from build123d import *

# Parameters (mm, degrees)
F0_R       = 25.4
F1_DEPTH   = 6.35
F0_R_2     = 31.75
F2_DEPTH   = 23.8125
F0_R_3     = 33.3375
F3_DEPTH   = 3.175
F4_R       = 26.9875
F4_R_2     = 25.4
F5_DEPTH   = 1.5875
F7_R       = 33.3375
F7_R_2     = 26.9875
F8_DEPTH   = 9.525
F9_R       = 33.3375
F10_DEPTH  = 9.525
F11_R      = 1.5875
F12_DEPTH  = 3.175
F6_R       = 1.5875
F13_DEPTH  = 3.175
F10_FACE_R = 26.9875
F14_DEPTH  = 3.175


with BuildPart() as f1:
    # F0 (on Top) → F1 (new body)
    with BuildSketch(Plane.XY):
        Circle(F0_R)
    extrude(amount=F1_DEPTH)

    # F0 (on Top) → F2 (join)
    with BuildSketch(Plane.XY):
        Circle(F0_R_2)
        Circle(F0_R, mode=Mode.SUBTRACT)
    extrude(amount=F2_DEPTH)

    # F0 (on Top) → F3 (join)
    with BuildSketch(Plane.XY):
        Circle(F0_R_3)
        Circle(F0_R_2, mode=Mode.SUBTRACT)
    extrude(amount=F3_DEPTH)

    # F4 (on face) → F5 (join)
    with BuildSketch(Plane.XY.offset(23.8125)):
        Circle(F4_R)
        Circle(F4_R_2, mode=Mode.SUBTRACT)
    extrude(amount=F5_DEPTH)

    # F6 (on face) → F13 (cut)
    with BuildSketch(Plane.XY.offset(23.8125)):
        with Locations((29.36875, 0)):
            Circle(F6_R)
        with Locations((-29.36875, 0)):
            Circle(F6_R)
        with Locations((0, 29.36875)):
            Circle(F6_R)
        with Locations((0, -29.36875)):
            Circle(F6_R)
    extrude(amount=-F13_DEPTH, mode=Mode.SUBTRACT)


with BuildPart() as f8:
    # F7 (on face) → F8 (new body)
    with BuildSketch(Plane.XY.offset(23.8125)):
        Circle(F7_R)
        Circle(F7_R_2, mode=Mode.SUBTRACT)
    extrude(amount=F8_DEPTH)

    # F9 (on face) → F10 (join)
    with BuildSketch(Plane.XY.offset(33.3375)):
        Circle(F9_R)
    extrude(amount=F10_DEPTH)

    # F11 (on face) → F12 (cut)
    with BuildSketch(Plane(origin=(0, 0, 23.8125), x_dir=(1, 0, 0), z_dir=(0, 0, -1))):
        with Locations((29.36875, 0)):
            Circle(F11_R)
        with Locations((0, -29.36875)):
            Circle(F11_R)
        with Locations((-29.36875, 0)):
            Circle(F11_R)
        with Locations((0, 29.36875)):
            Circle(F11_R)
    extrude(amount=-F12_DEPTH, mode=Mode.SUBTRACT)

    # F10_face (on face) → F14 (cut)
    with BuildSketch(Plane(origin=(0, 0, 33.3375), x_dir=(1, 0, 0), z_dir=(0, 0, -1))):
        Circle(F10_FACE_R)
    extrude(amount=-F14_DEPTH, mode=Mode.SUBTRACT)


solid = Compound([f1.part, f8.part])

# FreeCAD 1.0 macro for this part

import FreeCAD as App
import Part
import Sketcher
Q = App.Units.Quantity

doc = App.newDocument("Part")
body = doc.addObject("PartDesign::Body", "Body")

# Sketch on XY plane
sketch1 = doc.addObject("Sketcher::SketchObject", "Sketch")
body.addObject(sketch1)
sketch1.AttachmentSupport = (doc.XY_Plane, [""])
sketch1.MapMode = "FlatFace"
sketch1.addGeometry(Part.Circle(App.Vector(0, 0, 0), App.Vector(0, 0, 1), 25), False)
sketch1.addConstraint([
    Sketcher.Constraint("Coincident", 0, 3, -1, 1),
    Sketcher.Constraint("Diameter", 0, Q("2 in")),
])
pad1 = doc.addObject("PartDesign::Pad", "Pad")
body.addObject(pad1)
pad1.Profile = sketch1
pad1.Length = Q("0.25 in")

# Sketch on XY plane
sketch2 = doc.addObject("Sketcher::SketchObject", "Sketch001")
body.addObject(sketch2)
sketch2.AttachmentSupport = (doc.XY_Plane, [""])
sketch2.MapMode = "FlatFace"
sketch2.addGeometry([
    Part.Circle(App.Vector(0, 0, 0), App.Vector(0, 0, 1), 32),
    Part.Circle(App.Vector(0, 0, 0), App.Vector(0, 0, 1), 25),
], False)
sketch2.addConstraint([
    Sketcher.Constraint("Coincident", 0, 3, -1, 1),
    Sketcher.Constraint("Coincident", 1, 3, -1, 1),
    Sketcher.Constraint("Diameter", 1, Q("2 in")),
    Sketcher.Constraint("Diameter", 0, Q("2.5 in")),
])
pad2 = doc.addObject("PartDesign::Pad", "Pad001")
body.addObject(pad2)
pad2.Profile = sketch2
pad2.Length = Q("0.9375 in")

# Sketch on XY plane
sketch3 = doc.addObject("Sketcher::SketchObject", "Sketch002")
body.addObject(sketch3)
sketch3.AttachmentSupport = (doc.XY_Plane, [""])
sketch3.MapMode = "FlatFace"
sketch3.addGeometry([
    Part.Circle(App.Vector(0, 0, 0), App.Vector(0, 0, 1), 33),
    Part.Circle(App.Vector(0, 0, 0), App.Vector(0, 0, 1), 32),
], False)
sketch3.addConstraint([
    Sketcher.Constraint("Coincident", 0, 3, -1, 1),
    Sketcher.Constraint("Coincident", 1, 3, -1, 1),
    Sketcher.Constraint("Diameter", 1, Q("2.5 in")),
    Sketcher.Constraint("Diameter", 0, Q("2.625 in")),
])
pad3 = doc.addObject("PartDesign::Pad", "Pad002")
body.addObject(pad3)
pad3.Profile = sketch3
pad3.Length = Q("0.125 in")

# Sketch on XY plane
sketch4 = doc.addObject("Sketcher::SketchObject", "Sketch003")
body.addObject(sketch4)
sketch4.AttachmentSupport = (doc.XY_Plane, [""])
sketch4.MapMode = "FlatFace"
sketch4.AttachmentOffset = App.Placement(App.Vector(0, 0, 0.9375 * 25.4), App.Rotation())
sketch4.addGeometry([
    Part.Circle(App.Vector(0, 0, 0), App.Vector(0, 0, 1), 27),
    Part.Circle(App.Vector(0, 0, 0), App.Vector(0, 0, 1), 25),
], False)
sketch4.addConstraint([
    Sketcher.Constraint("Coincident", 0, 3, -1, 1),
    Sketcher.Constraint("Coincident", 1, 3, -1, 1),
    Sketcher.Constraint("Diameter", 1, Q("2 in")),
    Sketcher.Constraint("Diameter", 0, Q("2.125 in")),
])
pad4 = doc.addObject("PartDesign::Pad", "Pad003")
body.addObject(pad4)
pad4.Profile = sketch4
pad4.Length = Q("0.0625 in")

# Sketch on XY plane
sketch5 = doc.addObject("Sketcher::SketchObject", "Sketch004")
body.addObject(sketch5)
sketch5.AttachmentSupport = (doc.XY_Plane, [""])
sketch5.MapMode = "FlatFace"
sketch5.AttachmentOffset = App.Placement(App.Vector(0, 0, 0.9375 * 25.4), App.Rotation())
sketch5.addGeometry([
    Part.Circle(App.Vector(29.4, 0, 0), App.Vector(0, 0, 1), 1.6),
    Part.Circle(App.Vector(-29.4, 0, 0), App.Vector(0, 0, 1), 1.6),
    Part.Circle(App.Vector(0, 29.4, 0), App.Vector(0, 0, 1), 1.6),
    Part.Circle(App.Vector(0, -29.4, 0), App.Vector(0, 0, 1), 1.6),
], False)
sketch5.addConstraint([
    Sketcher.Constraint("Equal", 0, 1),
    Sketcher.Constraint("Equal", 1, 2),
    Sketcher.Constraint("Equal", 2, 3),
    Sketcher.Constraint("Symmetric", 0, 3, 1, 3, -1, 1),
    Sketcher.Constraint("Symmetric", 2, 3, 3, 3, -1, 1),
    Sketcher.Constraint("PointOnObject", 0, 3, -1),
    Sketcher.Constraint("PointOnObject", 2, 3, -2),
    Sketcher.Constraint("Diameter", 0, Q("0.125 in")),
    Sketcher.Constraint("DistanceX", -1, 1, 0, 3, Q("1.15625 in")),
    Sketcher.Constraint("DistanceY", -1, 1, 2, 3, Q("1.15625 in")),
])
pocket1 = doc.addObject("PartDesign::Pocket", "Pocket")
body.addObject(pocket1)
pocket1.Profile = sketch5
pocket1.Length = Q("0.125 in")
body2 = doc.addObject("PartDesign::Body", "Body001")

# Sketch on XY plane
sketch6 = doc.addObject("Sketcher::SketchObject", "Sketch005")
body2.addObject(sketch6)
sketch6.AttachmentSupport = (doc.getObject("XY_Plane001"), [""])
sketch6.MapMode = "FlatFace"
sketch6.AttachmentOffset = App.Placement(App.Vector(0, 0, 0.9375 * 25.4), App.Rotation())
sketch6.addGeometry([
    Part.Circle(App.Vector(0, 0, 0), App.Vector(0, 0, 1), 33),
    Part.Circle(App.Vector(0, 0, 0), App.Vector(0, 0, 1), 27),
], False)
sketch6.addConstraint([
    Sketcher.Constraint("Coincident", 0, 3, -1, 1),
    Sketcher.Constraint("Coincident", 1, 3, -1, 1),
    Sketcher.Constraint("Diameter", 0, Q("2.625 in")),
    Sketcher.Constraint("Diameter", 1, Q("2.125 in")),
])
pad5 = doc.addObject("PartDesign::Pad", "Pad004")
body2.addObject(pad5)
pad5.Profile = sketch6
pad5.Length = Q("0.375 in")

# Sketch on XY plane
sketch7 = doc.addObject("Sketcher::SketchObject", "Sketch006")
body2.addObject(sketch7)
sketch7.AttachmentSupport = (doc.getObject("XY_Plane001"), [""])
sketch7.MapMode = "FlatFace"
sketch7.AttachmentOffset = App.Placement(App.Vector(0, 0, 1.3125 * 25.4), App.Rotation())
sketch7.addGeometry(Part.Circle(App.Vector(0, 0, 0), App.Vector(0, 0, 1), 33), False)
sketch7.addConstraint([
    Sketcher.Constraint("Coincident", 0, 3, -1, 1),
    Sketcher.Constraint("Diameter", 0, Q("2.625 in")),
])
pad6 = doc.addObject("PartDesign::Pad", "Pad005")
body2.addObject(pad6)
pad6.Profile = sketch7
pad6.Length = Q("0.375 in")

# Sketch on XY plane
sketch8 = doc.addObject("Sketcher::SketchObject", "Sketch007")
body2.addObject(sketch8)
sketch8.AttachmentSupport = (doc.getObject("XY_Plane001"), [""])
sketch8.MapMode = "FlatFace"
sketch8.AttachmentOffset = App.Placement(App.Vector(0, 0, 0.9375 * 25.4), App.Rotation())
sketch8.addGeometry([
    Part.Circle(App.Vector(29.4, 0, 0), App.Vector(0, 0, 1), 1.6),
    Part.Circle(App.Vector(0, 29.4, 0), App.Vector(0, 0, 1), 1.6),
    Part.Circle(App.Vector(-29.4, 0, 0), App.Vector(0, 0, 1), 1.6),
    Part.Circle(App.Vector(0, -29.4, 0), App.Vector(0, 0, 1), 1.6),
], False)
sketch8.addConstraint([
    Sketcher.Constraint("Equal", 0, 1),
    Sketcher.Constraint("Equal", 1, 2),
    Sketcher.Constraint("Equal", 2, 3),
    Sketcher.Constraint("Symmetric", 0, 3, 2, 3, -1, 1),
    Sketcher.Constraint("Symmetric", 1, 3, 3, 3, -1, 1),
    Sketcher.Constraint("PointOnObject", 0, 3, -1),
    Sketcher.Constraint("PointOnObject", 1, 3, -2),
    Sketcher.Constraint("Diameter", 0, Q("0.125 in")),
    Sketcher.Constraint("DistanceX", -1, 1, 0, 3, Q("1.15625 in")),
    Sketcher.Constraint("DistanceY", -1, 1, 1, 3, Q("1.15625 in")),
])
pocket2 = doc.addObject("PartDesign::Pocket", "Pocket001")
body2.addObject(pocket2)
pocket2.Profile = sketch8
pocket2.Length = Q("0.125 in")
pocket2.Reversed = True

# Sketch on XY plane
sketch9 = doc.addObject("Sketcher::SketchObject", "Sketch008")
body2.addObject(sketch9)
sketch9.AttachmentSupport = (doc.getObject("XY_Plane001"), [""])
sketch9.MapMode = "FlatFace"
sketch9.AttachmentOffset = App.Placement(App.Vector(0, 0, 1.3125 * 25.4), App.Rotation())
sketch9.addGeometry(Part.Circle(App.Vector(0, 0, 0), App.Vector(0, 0, 1), 27), False)
sketch9.addConstraint([
    Sketcher.Constraint("Coincident", 0, 3, -1, 1),
    Sketcher.Constraint("Diameter", 0, Q("2.125 in")),
])
pocket3 = doc.addObject("PartDesign::Pocket", "Pocket002")
body2.addObject(pocket3)
pocket3.Profile = sketch9
pocket3.Length = Q("0.125 in")
pocket3.Reversed = True

doc.recompute()
